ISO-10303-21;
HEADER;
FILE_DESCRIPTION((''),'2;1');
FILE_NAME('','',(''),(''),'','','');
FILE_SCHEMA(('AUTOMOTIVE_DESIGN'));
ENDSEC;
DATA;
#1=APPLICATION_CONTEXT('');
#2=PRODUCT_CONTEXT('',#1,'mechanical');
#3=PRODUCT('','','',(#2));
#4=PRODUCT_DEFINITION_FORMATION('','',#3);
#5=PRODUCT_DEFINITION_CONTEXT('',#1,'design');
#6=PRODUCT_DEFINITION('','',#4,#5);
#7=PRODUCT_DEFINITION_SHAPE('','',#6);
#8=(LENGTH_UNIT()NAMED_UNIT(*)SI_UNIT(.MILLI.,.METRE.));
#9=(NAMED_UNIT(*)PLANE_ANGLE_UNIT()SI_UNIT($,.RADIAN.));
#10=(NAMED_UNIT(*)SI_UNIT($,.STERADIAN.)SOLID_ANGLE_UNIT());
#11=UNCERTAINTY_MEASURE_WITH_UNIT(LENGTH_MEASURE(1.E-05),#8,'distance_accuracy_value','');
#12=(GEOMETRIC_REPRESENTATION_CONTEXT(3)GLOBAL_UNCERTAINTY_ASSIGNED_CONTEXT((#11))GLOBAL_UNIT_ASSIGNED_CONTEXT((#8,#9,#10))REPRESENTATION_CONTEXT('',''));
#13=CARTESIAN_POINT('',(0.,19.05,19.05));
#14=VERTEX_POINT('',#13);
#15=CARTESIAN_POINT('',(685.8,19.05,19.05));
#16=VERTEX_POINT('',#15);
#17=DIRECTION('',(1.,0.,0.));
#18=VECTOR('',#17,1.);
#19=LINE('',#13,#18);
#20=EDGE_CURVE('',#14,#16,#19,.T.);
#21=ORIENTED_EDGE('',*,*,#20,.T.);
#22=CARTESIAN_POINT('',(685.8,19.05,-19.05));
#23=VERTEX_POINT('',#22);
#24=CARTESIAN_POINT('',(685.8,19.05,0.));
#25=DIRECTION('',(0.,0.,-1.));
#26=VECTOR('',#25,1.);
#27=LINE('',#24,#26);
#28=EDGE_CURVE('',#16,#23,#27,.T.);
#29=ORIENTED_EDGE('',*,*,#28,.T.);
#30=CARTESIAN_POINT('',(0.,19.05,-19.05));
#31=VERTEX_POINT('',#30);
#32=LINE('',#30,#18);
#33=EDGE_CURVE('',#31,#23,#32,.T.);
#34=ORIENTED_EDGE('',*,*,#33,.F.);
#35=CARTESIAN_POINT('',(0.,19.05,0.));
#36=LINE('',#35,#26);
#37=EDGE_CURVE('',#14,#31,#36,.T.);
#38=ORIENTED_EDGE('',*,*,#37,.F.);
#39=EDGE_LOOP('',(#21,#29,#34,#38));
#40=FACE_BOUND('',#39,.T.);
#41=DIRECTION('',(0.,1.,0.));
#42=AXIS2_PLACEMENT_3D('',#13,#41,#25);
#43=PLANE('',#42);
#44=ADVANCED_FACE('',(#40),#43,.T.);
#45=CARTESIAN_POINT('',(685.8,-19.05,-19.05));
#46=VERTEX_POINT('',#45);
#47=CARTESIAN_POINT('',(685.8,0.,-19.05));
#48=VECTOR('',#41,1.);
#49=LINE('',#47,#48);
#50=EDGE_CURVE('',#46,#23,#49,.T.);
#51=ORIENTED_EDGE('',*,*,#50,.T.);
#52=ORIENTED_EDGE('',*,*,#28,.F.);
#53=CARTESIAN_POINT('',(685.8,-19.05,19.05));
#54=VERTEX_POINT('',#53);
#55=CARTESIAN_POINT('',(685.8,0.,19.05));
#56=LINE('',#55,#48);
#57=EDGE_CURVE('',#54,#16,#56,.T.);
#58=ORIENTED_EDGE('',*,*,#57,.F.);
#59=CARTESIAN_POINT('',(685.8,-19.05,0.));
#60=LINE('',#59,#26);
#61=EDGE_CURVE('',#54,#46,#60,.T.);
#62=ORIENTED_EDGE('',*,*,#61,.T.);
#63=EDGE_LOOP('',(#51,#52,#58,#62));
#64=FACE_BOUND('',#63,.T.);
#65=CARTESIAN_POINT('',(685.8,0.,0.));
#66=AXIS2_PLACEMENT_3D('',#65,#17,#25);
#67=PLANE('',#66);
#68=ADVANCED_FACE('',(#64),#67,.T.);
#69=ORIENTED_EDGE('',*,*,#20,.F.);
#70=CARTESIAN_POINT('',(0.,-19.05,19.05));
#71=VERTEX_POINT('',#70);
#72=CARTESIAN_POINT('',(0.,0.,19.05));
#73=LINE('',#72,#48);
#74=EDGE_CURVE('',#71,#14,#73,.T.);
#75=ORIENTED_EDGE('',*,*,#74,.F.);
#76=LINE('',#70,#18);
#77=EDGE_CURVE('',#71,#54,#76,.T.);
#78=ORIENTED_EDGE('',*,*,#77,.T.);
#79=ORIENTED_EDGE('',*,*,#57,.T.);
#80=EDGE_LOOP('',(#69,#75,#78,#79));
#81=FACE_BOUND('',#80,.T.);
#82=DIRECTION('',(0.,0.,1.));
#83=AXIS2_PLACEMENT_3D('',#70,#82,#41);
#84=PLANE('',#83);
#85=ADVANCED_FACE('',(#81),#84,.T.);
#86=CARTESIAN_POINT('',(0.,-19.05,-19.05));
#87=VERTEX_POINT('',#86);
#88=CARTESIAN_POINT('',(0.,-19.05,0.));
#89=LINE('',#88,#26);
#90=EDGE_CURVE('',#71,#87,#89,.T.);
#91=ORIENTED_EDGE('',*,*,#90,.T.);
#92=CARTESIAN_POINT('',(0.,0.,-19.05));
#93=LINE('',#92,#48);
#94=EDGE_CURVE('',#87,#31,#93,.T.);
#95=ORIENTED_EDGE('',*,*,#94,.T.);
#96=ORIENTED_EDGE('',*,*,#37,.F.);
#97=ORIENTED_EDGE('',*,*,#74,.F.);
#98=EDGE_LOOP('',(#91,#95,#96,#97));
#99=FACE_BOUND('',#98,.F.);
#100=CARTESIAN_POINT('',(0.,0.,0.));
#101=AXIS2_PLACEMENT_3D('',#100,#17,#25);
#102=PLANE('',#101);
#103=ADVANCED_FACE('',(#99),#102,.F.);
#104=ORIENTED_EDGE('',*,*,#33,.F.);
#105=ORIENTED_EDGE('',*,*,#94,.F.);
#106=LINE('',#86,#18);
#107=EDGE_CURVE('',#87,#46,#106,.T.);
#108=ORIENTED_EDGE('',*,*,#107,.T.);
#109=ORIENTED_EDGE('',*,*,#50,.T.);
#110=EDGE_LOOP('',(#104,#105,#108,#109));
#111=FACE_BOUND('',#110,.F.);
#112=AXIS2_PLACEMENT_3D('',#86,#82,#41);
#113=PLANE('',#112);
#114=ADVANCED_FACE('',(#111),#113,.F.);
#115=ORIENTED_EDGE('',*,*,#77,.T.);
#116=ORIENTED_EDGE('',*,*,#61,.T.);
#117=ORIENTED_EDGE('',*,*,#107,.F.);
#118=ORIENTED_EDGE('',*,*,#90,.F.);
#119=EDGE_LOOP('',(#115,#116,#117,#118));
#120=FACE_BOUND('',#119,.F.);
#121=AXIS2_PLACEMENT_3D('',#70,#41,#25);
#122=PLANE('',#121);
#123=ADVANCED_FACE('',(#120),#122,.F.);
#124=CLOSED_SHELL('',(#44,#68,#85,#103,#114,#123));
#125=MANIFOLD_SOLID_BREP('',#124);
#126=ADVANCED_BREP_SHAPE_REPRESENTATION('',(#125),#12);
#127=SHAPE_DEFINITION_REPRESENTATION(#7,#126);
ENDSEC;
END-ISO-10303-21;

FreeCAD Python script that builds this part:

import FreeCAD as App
import Part
import Sketcher
from FreeCAD import Vector
Q = App.Units.Quantity

doc = App.newDocument("Part")
params = doc.addObject("Spreadsheet::Sheet", "Params")
for row, (alias, value) in enumerate([
    ("sketch1_width", "1.5 in"),
    ("pad1_length", "27 in"),
], start=1):
    params.set(f"A{row}", alias)
    params.set(f"B{row}", "=" + value)
    params.setAlias(f"B{row}", alias)

body = doc.addObject("PartDesign::Body", "Body")

# Sketch on YZ plane
sketch1 = body.newObject("Sketcher::SketchObject", "Sketch")
sketch1.AttachmentSupport = (doc.getObject("YZ_Plane"), [""])
sketch1.MapMode = "FlatFace"
sketch1.addGeometry([
    Part.LineSegment(Vector(19, 19, 0), Vector(-19, 19, 0)),
    Part.LineSegment(Vector(-19, 19, 0), Vector(-19, -19, 0)),
    Part.LineSegment(Vector(-19, -19, 0), Vector(19, -19, 0)),
    Part.LineSegment(Vector(19, -19, 0), Vector(19, 19, 0)),
], False)
sketch1.addConstraint([
    Sketcher.Constraint("Coincident", 0, 2, 1, 1),
    Sketcher.Constraint("Coincident", 1, 2, 2, 1),
    Sketcher.Constraint("Coincident", 2, 2, 3, 1),
    Sketcher.Constraint("Coincident", 3, 2, 0, 1),
    Sketcher.Constraint("Horizontal", 0),
    Sketcher.Constraint("Vertical", 1),
    Sketcher.Constraint("Horizontal", 2),
    Sketcher.Constraint("Vertical", 3),
    Sketcher.Constraint("Symmetric", 0, 2, 2, 2, -1, 1),
    Sketcher.Constraint("Equal", 2, 1),
    Sketcher.Constraint("DistanceX", 0, 2, 0, 1, Q("1.5 in")),
])
sketch1.setExpression("Constraints[10]", "Params.sketch1_width")
pad1 = body.newObject("PartDesign::Pad", "Pad")
pad1.Profile = sketch1
pad1.setExpression("Length", "Params.pad1_length")

doc.recompute()
